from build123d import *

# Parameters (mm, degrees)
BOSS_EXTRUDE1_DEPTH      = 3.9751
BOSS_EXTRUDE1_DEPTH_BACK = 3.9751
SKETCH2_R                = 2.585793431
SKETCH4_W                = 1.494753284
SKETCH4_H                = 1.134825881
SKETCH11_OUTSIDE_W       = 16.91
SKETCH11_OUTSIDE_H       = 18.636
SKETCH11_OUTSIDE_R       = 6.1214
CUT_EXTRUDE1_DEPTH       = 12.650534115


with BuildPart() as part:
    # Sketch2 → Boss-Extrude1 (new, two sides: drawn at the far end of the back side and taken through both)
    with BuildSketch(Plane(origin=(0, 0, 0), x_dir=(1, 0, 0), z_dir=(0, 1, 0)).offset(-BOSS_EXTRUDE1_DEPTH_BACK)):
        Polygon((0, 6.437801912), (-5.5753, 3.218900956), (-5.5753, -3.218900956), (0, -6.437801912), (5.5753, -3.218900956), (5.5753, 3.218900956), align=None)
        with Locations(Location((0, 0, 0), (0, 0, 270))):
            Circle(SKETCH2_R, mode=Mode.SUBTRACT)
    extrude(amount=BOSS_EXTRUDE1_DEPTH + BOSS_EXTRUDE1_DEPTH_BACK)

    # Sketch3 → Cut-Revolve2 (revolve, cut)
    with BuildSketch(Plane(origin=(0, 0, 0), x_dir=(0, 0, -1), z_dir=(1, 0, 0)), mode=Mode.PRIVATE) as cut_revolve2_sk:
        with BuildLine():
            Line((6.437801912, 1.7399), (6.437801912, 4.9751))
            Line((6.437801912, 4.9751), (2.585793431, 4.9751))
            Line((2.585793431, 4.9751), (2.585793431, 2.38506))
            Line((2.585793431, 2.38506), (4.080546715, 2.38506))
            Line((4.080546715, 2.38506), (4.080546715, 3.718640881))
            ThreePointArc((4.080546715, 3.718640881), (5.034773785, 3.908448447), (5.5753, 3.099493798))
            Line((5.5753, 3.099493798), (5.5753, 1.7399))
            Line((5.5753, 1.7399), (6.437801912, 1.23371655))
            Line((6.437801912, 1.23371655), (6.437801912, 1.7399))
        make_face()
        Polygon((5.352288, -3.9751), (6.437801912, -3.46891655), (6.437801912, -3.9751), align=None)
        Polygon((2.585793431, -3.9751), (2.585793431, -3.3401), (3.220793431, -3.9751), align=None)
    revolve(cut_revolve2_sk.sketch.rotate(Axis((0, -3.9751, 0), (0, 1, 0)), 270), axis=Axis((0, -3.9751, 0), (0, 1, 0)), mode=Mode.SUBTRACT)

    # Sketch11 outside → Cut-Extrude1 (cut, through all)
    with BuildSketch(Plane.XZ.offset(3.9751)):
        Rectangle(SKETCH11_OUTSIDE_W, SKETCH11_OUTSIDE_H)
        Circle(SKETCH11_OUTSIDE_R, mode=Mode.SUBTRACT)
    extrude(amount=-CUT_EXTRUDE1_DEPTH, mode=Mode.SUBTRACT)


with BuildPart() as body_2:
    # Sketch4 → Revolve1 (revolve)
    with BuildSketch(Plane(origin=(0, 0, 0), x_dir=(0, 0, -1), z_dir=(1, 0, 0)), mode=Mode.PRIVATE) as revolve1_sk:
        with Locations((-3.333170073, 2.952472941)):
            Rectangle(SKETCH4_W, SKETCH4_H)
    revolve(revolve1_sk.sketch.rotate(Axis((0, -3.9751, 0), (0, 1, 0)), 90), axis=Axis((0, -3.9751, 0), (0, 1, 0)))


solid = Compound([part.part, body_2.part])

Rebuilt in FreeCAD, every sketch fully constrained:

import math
import FreeCAD as App
import Part
import Sketcher

V = App.Vector
Q = App.Units.Quantity

doc = App.newDocument("Part")
body = doc.addObject("PartDesign::Body", "Body")

# Sketch on XZ plane
sketch1 = body.newObject("Sketcher::SketchObject", "Sketch")
sketch1.AttachmentSupport = (doc.getObject("XZ_Plane"), [""])
sketch1.MapMode = "FlatFace"
sketch1.addGeometry(Part.LineSegment(V(0, -6.4, 0), V(-5.6, -3.2, 0)), False)
sketch1.addGeometry(Part.LineSegment(V(-5.6, -3.2, 0), V(-5.6, 3.2, 0)), False)
sketch1.addGeometry(Part.LineSegment(V(-5.6, 3.2, 0), V(0, 6.4, 0)), False)
sketch1.addGeometry(Part.LineSegment(V(0, 6.4, 0), V(5.6, 3.2, 0)), False)
sketch1.addGeometry(Part.LineSegment(V(5.6, 3.2, 0), V(5.6, -3.2, 0)), False)
sketch1.addGeometry(Part.LineSegment(V(5.6, -3.2, 0), V(0, -6.4, 0)), False)
sketch1.addGeometry(Part.Circle(V(0, 0, 0), V(0, 0, 1), 2.6), False)
sketch1.addConstraint(Sketcher.Constraint("Coincident", 0, 2, 1, 1))
sketch1.addConstraint(Sketcher.Constraint("Coincident", 1, 2, 2, 1))
sketch1.addConstraint(Sketcher.Constraint("Coincident", 2, 2, 3, 1))
sketch1.addConstraint(Sketcher.Constraint("Coincident", 3, 2, 4, 1))
sketch1.addConstraint(Sketcher.Constraint("Coincident", 4, 2, 5, 1))
sketch1.addConstraint(Sketcher.Constraint("Coincident", 5, 2, 0, 1))
sketch1.addConstraint(Sketcher.Constraint("Vertical", 1))
sketch1.addConstraint(Sketcher.Constraint("Vertical", 4))
sketch1.addConstraint(Sketcher.Constraint("Coincident", 6, 3, -1, 1))
sketch1.addConstraint(Sketcher.Constraint("Symmetric", 0, 2, 3, 2, -1, 1))
sketch1.addConstraint(Sketcher.Constraint("Symmetric", 2, 2, 5, 2, -1, 1))
sketch1.addConstraint(Sketcher.Constraint("PointOnObject", 2, 2, -2))
sketch1.addConstraint(Sketcher.Constraint("Parallel", 2, 5))
sketch1.addConstraint(Sketcher.Constraint("Horizontal", 1, 2, 3, 2))
sketch1.addConstraint(Sketcher.Constraint("Angle", 0, Q("150 deg")))
sketch1.addConstraint(Sketcher.Constraint("DistanceX", 1, 2, 3, 2, Q("0.439 in")))
sketch1.addConstraint(Sketcher.Constraint("Diameter", 6, Q("5.171587 mm")))
sketch1.addConstraint(Sketcher.Constraint("DistanceY", 1, 1, 1, 2, Q("6.437802 mm")))
pad1 = body.newObject("PartDesign::Pad", "Pad")
pad1.Profile = sketch1
pad1.Type = "TwoLengths"
pad1.Length = Q("0.1565 in")
pad1.Length2 = Q("0.1565 in")
pad1.Reversed = True

# Sketch on YZ plane
sketch2 = body.newObject("Sketcher::SketchObject", "Sketch001")
sketch2.AttachmentSupport = (doc.getObject("YZ_Plane"), [""])
sketch2.MapMode = "FlatFace"
sketch2.addGeometry(Part.LineSegment(V(5, -6.4, 0), V(5, -2.6, 0)), False)
sketch2.addGeometry(Part.LineSegment(V(5, -2.6, 0), V(2.4, -2.6, 0)), False)
sketch2.addGeometry(Part.LineSegment(V(2.4, -2.6, 0), V(2.4, -4.1, 0)), False)
sketch2.addGeometry(Part.LineSegment(V(2.4, -4.1, 0), V(3.7, -4.1, 0)), False)
sketch2.addGeometry(Part.ArcOfCircle(Part.Circle(V(3.1, -4.7, 0), V(0, 0, 1), 0.9), math.radians(-90), math.radians(45)), False)
sketch2.addGeometry(Part.LineSegment(V(3.1, -5.6, 0), V(1.7, -5.6, 0)), False)
sketch2.addGeometry(Part.LineSegment(V(1.7, -5.6, 0), V(1.2, -6.4, 0)), False)
sketch2.addGeometry(Part.LineSegment(V(1.2, -6.4, 0), V(5, -6.4, 0)), False)
sketch2.addGeometry(Part.LineSegment(V(-3.5, -6.4, 0), V(-4, -5.4, 0)), False)
sketch2.addGeometry(Part.LineSegment(V(-4, -5.4, 0), V(-4, -6.4, 0)), False)
sketch2.addGeometry(Part.LineSegment(V(-4, -6.4, 0), V(-3.5, -6.4, 0)), False)
sketch2.addGeometry(Part.LineSegment(V(-3.3, -2.6, 0), V(-4, -2.6, 0)), False)
sketch2.addGeometry(Part.LineSegment(V(-4, -2.6, 0), V(-4, -3.2, 0)), False)
sketch2.addGeometry(Part.LineSegment(V(-4, -3.2, 0), V(-3.3, -2.6, 0)), False)
sketch2.addConstraint(Sketcher.Constraint("Coincident", 0, 2, 1, 1))
sketch2.addConstraint(Sketcher.Constraint("Coincident", 1, 2, 2, 1))
sketch2.addConstraint(Sketcher.Constraint("Coincident", 2, 2, 3, 1))
sketch2.addConstraint(Sketcher.Constraint("Coincident", 3, 2, 4, 2))
sketch2.addConstraint(Sketcher.Constraint("Tangent", 4, 1, 5, 1))
sketch2.addConstraint(Sketcher.Constraint("Coincident", 5, 2, 6, 1))
sketch2.addConstraint(Sketcher.Constraint("Coincident", 6, 2, 7, 1))
sketch2.addConstraint(Sketcher.Constraint("Coincident", 7, 2, 0, 1))
sketch2.addConstraint(Sketcher.Constraint("Coincident", 8, 2, 9, 1))
sketch2.addConstraint(Sketcher.Constraint("Coincident", 9, 2, 10, 1))
sketch2.addConstraint(Sketcher.Constraint("Coincident", 10, 2, 8, 1))
sketch2.addConstraint(Sketcher.Constraint("Coincident", 11, 2, 12, 1))
sketch2.addConstraint(Sketcher.Constraint("Coincident", 12, 2, 13, 1))
sketch2.addConstraint(Sketcher.Constraint("Coincident", 13, 2, 11, 1))
sketch2.addConstraint(Sketcher.Constraint("Vertical", 0))
sketch2.addConstraint(Sketcher.Constraint("Horizontal", 1))
sketch2.addConstraint(Sketcher.Constraint("Vertical", 2))
sketch2.addConstraint(Sketcher.Constraint("Horizontal", 3))
sketch2.addConstraint(Sketcher.Constraint("Horizontal", 5))
sketch2.addConstraint(Sketcher.Constraint("Horizontal", 7))
sketch2.addConstraint(Sketcher.Constraint("Vertical", 9))
sketch2.addConstraint(Sketcher.Constraint("Horizontal", 10))
sketch2.addConstraint(Sketcher.Constraint("Horizontal", 11))
sketch2.addConstraint(Sketcher.Constraint("Vertical", 12))
sketch2.addConstraint(Sketcher.Constraint("Horizontal", 7, 2, 9, 2))
sketch2.addConstraint(Sketcher.Constraint("Horizontal", 1, 2, 11, 2))
sketch2.addConstraint(Sketcher.Constraint("Vertical", 9, 2, 11, 2))
sketch2.addConstraint(Sketcher.Constraint("Equal", 11, 12))
sketch2.addConstraint(Sketcher.Constraint("Angle", 8, Q("115 deg")))
sketch2.addConstraint(Sketcher.Constraint("DistanceX", 11, 2, 11, 1, Q("0.025 in")))
sketch2.addConstraint(Sketcher.Constraint("DistanceX", 8, 2, 5, 2, Q("0.225 in")))
sketch2.addConstraint(Sketcher.Constraint("DistanceX", -1, 1, 1, 2, Q("0.0939 in")))
sketch2.addConstraint(Sketcher.Constraint("DistanceY", 4, 1, -1, 1, Q("0.2195 in")))
sketch2.addConstraint(Sketcher.Constraint("DistanceX", -1, 1, 5, 2, Q("0.0685 in")))
sketch2.addConstraint(Sketcher.Constraint("Radius", 4, Q("0.875606 mm")))
sketch2.addConstraint(Sketcher.Constraint("DistanceX", 1, 2, 1, 1, Q("2.59004 mm")))
sketch2.addConstraint(Sketcher.Constraint("DistanceX", 3, 1, 3, 2, Q("1.333581 mm")))
sketch2.addConstraint(Sketcher.Constraint("DistanceY", 0, 1, 0, 2, Q("3.852008 mm")))
sketch2.addConstraint(Sketcher.Constraint("DistanceY", 6, 2, -1, 1, Q("6.437802 mm")))
sketch2.addConstraint(Sketcher.Constraint("DistanceX", 5, 2, 5, 1, Q("1.359594 mm")))
sketch2.addConstraint(Sketcher.Constraint("DistanceX", 7, 1, 7, 2, Q("3.741383 mm")))
sketch2.addConstraint(Sketcher.Constraint("DistanceX", 10, 1, 10, 2, Q("0.506183 mm")))
groove = body.newObject("PartDesign::Groove", "Groove")
groove.Profile = sketch2
groove.ReferenceAxis = (sketch2, ["H_Axis"])
groove.Angle = 360

# Sketch on XZ plane
sketch3 = body.newObject("Sketcher::SketchObject", "Sketch002")
sketch3.AttachmentSupport = (doc.getObject("XZ_Plane"), [""])
sketch3.MapMode = "FlatFace"
sketch3.AttachmentOffset = App.Placement(V(0, 0, 0.1565 * 25.4), App.Rotation())
sketch3.addGeometry(Part.LineSegment(V(-8, 9, 0), V(-8, -9, 0)), False)
sketch3.addGeometry(Part.LineSegment(V(-8, -9, 0), V(8, -9, 0)), False)
sketch3.addGeometry(Part.LineSegment(V(8, -9, 0), V(8, 9, 0)), False)
sketch3.addGeometry(Part.LineSegment(V(8, 9, 0), V(-8, 9, 0)), False)
sketch3.addGeometry(Part.Circle(V(0, 0, 0), V(0, 0, 1), 6), False)
sketch3.addConstraint(Sketcher.Constraint("Coincident", 0, 2, 1, 1))
sketch3.addConstraint(Sketcher.Constraint("Coincident", 1, 2, 2, 1))
sketch3.addConstraint(Sketcher.Constraint("Coincident", 2, 2, 3, 1))
sketch3.addConstraint(Sketcher.Constraint("Coincident", 3, 2, 0, 1))
sketch3.addConstraint(Sketcher.Constraint("Vertical", 0))
sketch3.addConstraint(Sketcher.Constraint("Horizontal", 1))
sketch3.addConstraint(Sketcher.Constraint("Vertical", 2))
sketch3.addConstraint(Sketcher.Constraint("Horizontal", 3))
sketch3.addConstraint(Sketcher.Constraint("Coincident", 4, 3, -1, 1))
sketch3.addConstraint(Sketcher.Constraint("Symmetric", 0, 2, 2, 2, -1, 1))
sketch3.addConstraint(Sketcher.Constraint("Diameter", 4, Q("0.482 in")))
sketch3.addConstraint(Sketcher.Constraint("DistanceX", 1, 1, 1, 2, Q("16.91 mm")))
sketch3.addConstraint(Sketcher.Constraint("DistanceY", 0, 2, 0, 1, Q("18.636 mm")))
pocket1 = body.newObject("PartDesign::Pocket", "Pocket")
pocket1.Profile = sketch3
pocket1.Type = "ThroughAll"
body2 = doc.addObject("PartDesign::Body", "Body001")

# Sketch on YZ plane
sketch4 = body2.newObject("Sketcher::SketchObject", "Sketch003")
sketch4.AttachmentSupport = (doc.getObject("YZ_Plane001"), [""])
sketch4.MapMode = "FlatFace"
sketch4.addGeometry(Part.LineSegment(V(3.5, 4.1, 0), V(2.4, 4.1, 0)), False)
sketch4.addGeometry(Part.LineSegment(V(2.4, 4.1, 0), V(2.4, 2.6, 0)), False)
sketch4.addGeometry(Part.LineSegment(V(2.4, 2.6, 0), V(3.5, 2.6, 0)), False)
sketch4.addGeometry(Part.LineSegment(V(3.5, 2.6, 0), V(3.5, 4.1, 0)), False)
sketch4.addConstraint(Sketcher.Constraint("Coincident", 0, 2, 1, 1))
sketch4.addConstraint(Sketcher.Constraint("Coincident", 1, 2, 2, 1))
sketch4.addConstraint(Sketcher.Constraint("Coincident", 2, 2, 3, 1))
sketch4.addConstraint(Sketcher.Constraint("Coincident", 3, 2, 0, 1))
sketch4.addConstraint(Sketcher.Constraint("Horizontal", 0))
sketch4.addConstraint(Sketcher.Constraint("Vertical", 1))
sketch4.addConstraint(Sketcher.Constraint("Horizontal", 2))
sketch4.addConstraint(Sketcher.Constraint("Vertical", 3))
sketch4.addConstraint(Sketcher.Constraint("DistanceX", -1, 1, 0, 2, Q("0.0939 in")))
sketch4.addConstraint(Sketcher.Constraint("DistanceX", 0, 2, 0, 1, Q("1.134826 mm")))
sketch4.addConstraint(Sketcher.Constraint("DistanceY", 1, 2, 1, 1, Q("1.494753 mm")))
sketch4.addConstraint(Sketcher.Constraint("DistanceY", -1, 1, 0, 2, Q("4.080547 mm")))
revolution = body2.newObject("PartDesign::Revolution", "Revolution")
revolution.Profile = sketch4
revolution.ReferenceAxis = (sketch4, ["H_Axis"])
revolution.Angle = 360

doc.recompute()
